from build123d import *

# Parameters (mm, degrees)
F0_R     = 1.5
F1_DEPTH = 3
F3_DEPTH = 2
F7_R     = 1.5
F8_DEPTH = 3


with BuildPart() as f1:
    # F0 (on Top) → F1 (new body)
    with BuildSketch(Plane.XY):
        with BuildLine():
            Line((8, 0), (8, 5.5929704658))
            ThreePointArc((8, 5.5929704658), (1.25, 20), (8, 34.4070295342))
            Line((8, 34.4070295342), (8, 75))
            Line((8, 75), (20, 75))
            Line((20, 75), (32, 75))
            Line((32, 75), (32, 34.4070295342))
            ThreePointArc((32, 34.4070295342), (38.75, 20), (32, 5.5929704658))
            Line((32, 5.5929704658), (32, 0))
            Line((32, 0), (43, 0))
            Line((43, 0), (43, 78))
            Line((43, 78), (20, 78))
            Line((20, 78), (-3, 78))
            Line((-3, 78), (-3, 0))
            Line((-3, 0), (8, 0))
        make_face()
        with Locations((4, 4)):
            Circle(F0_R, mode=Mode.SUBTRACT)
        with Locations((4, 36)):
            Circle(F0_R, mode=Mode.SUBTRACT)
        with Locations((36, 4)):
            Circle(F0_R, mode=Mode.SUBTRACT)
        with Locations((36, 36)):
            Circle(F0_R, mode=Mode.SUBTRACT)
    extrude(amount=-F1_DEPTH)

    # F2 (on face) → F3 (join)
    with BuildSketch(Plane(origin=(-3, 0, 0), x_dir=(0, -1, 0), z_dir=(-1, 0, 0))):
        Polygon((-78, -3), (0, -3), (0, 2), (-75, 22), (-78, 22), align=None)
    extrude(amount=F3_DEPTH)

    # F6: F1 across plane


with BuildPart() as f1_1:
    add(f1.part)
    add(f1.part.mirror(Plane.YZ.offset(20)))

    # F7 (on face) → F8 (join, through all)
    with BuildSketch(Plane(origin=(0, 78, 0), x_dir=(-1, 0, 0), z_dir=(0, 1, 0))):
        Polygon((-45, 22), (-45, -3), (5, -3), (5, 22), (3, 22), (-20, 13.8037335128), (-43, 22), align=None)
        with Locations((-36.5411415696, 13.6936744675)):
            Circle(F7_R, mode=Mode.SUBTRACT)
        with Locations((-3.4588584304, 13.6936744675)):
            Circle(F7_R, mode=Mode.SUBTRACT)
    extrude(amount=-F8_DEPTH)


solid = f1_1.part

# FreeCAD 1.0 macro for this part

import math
import FreeCAD as App
import Part
import Sketcher

V = App.Vector
Q = App.Units.Quantity


def add_polygon(sketch, points):
    """Adds a closed chain of lines whose ends are joined by coincident constraints."""
    first, n = sketch.GeometryCount, len(points)
    for a, b in zip(points, points[1:] + points[:1]):
        sketch.addGeometry(Part.LineSegment(App.Vector(*a, 0), App.Vector(*b, 0)), False)
    for i in range(n):
        sketch.addConstraint(Sketcher.Constraint("Coincident", first + i, 2, first + (i + 1) % n, 1))

doc = App.newDocument("Part")
body = doc.addObject("PartDesign::Body", "Body")

# Sketch on XY plane
sketch1 = doc.addObject("Sketcher::SketchObject", "Sketch")
body.addObject(sketch1)
sketch1.AttachmentSupport = (doc.XY_Plane, [""])
sketch1.MapMode = "FlatFace"
sketch1.addGeometry(Part.LineSegment(V(8, 0, 0), V(8, 5.59297, 0)), False)
sketch1.addGeometry(Part.ArcOfCircle(Part.Circle(V(20, 20, 0), V(0, 0, 1), 18.75), math.radians(129.791819), math.radians(230.208181)), False)
sketch1.addGeometry(Part.LineSegment(V(8, 34.40703, 0), V(8, 75, 0)), False)
sketch1.addGeometry(Part.LineSegment(V(8, 75, 0), V(32, 75, 0)), False)
sketch1.addGeometry(Part.LineSegment(V(32, 75, 0), V(32, 34.40703, 0)), False)
sketch1.addGeometry(Part.ArcOfCircle(Part.Circle(V(20, 20, 0), V(0, 0, 1), 18.75), math.radians(-50.208181), math.radians(50.208181)), False)
sketch1.addGeometry(Part.LineSegment(V(32, 5.59297, 0), V(32, 0, 0)), False)
sketch1.addGeometry(Part.LineSegment(V(32, 0, 0), V(43, 0, 0)), False)
sketch1.addGeometry(Part.LineSegment(V(43, 0, 0), V(43, 78, 0)), False)
sketch1.addGeometry(Part.LineSegment(V(43, 78, 0), V(-3, 78, 0)), False)
sketch1.addGeometry(Part.LineSegment(V(-3, 78, 0), V(-3, 0, 0)), False)
sketch1.addGeometry(Part.LineSegment(V(-3, 0, 0), V(8, 0, 0)), False)
sketch1.addGeometry(Part.Circle(V(4, 4, 0), V(0, 0, 1), 1.5), False)
sketch1.addGeometry(Part.Circle(V(36, 4, 0), V(0, 0, 1), 1.5), False)
sketch1.addGeometry(Part.Circle(V(4, 36, 0), V(0, 0, 1), 1.5), False)
sketch1.addGeometry(Part.Circle(V(36, 36, 0), V(0, 0, 1), 1.5), False)
sketch1.addConstraint(Sketcher.Constraint("Coincident", 0, 2, 1, 2))
sketch1.addConstraint(Sketcher.Constraint("Coincident", 1, 1, 2, 1))
sketch1.addConstraint(Sketcher.Constraint("Coincident", 2, 2, 3, 1))
sketch1.addConstraint(Sketcher.Constraint("Coincident", 3, 2, 4, 1))
sketch1.addConstraint(Sketcher.Constraint("Coincident", 4, 2, 5, 2))
sketch1.addConstraint(Sketcher.Constraint("Coincident", 5, 1, 6, 1))
sketch1.addConstraint(Sketcher.Constraint("Coincident", 6, 2, 7, 1))
sketch1.addConstraint(Sketcher.Constraint("Coincident", 7, 2, 8, 1))
sketch1.addConstraint(Sketcher.Constraint("Coincident", 8, 2, 9, 1))
sketch1.addConstraint(Sketcher.Constraint("Coincident", 9, 2, 10, 1))
sketch1.addConstraint(Sketcher.Constraint("Coincident", 10, 2, 11, 1))
sketch1.addConstraint(Sketcher.Constraint("Coincident", 11, 2, 0, 1))
sketch1.addConstraint(Sketcher.Constraint("Vertical", 0))
sketch1.addConstraint(Sketcher.Constraint("Vertical", 2))
sketch1.addConstraint(Sketcher.Constraint("Horizontal", 3))
sketch1.addConstraint(Sketcher.Constraint("Vertical", 4))
sketch1.addConstraint(Sketcher.Constraint("Vertical", 6))
sketch1.addConstraint(Sketcher.Constraint("Horizontal", 7))
sketch1.addConstraint(Sketcher.Constraint("Vertical", 8))
sketch1.addConstraint(Sketcher.Constraint("Horizontal", 9))
sketch1.addConstraint(Sketcher.Constraint("Vertical", 10))
sketch1.addConstraint(Sketcher.Constraint("Horizontal", 11))
sketch1.addConstraint(Sketcher.Constraint("Coincident", 5, 3, 1, 3))
sketch1.addConstraint(Sketcher.Constraint("Equal", 1, 5))
sketch1.addConstraint(Sketcher.Constraint("Equal", 12, 13))
sketch1.addConstraint(Sketcher.Constraint("Equal", 13, 14))
sketch1.addConstraint(Sketcher.Constraint("Equal", 14, 15))
sketch1.addConstraint(Sketcher.Constraint("PointOnObject", 6, 2, -1))
sketch1.addConstraint(Sketcher.Constraint("PointOnObject", 10, 2, -1))
sketch1.addConstraint(Sketcher.Constraint("Horizontal", 12, 3, 13, 3))
sketch1.addConstraint(Sketcher.Constraint("Horizontal", 14, 3, 15, 3))
sketch1.addConstraint(Sketcher.Constraint("Horizontal", 1, 1, 4, 2))
sketch1.addConstraint(Sketcher.Constraint("Horizontal", 0, 2, 5, 1))
sketch1.addConstraint(Sketcher.Constraint("Vertical", 12, 3, 14, 3))
sketch1.addConstraint(Sketcher.Constraint("Vertical", 13, 3, 15, 3))
sketch1.addConstraint(Sketcher.Constraint("Vertical", 0, 2, 1, 1))
sketch1.addConstraint(Sketcher.Constraint("Equal", 7, 11))
sketch1.addConstraint(Sketcher.Constraint("Diameter", 12, Q("3 mm")))
sketch1.addConstraint(Sketcher.Constraint("DistanceX", 3, 1, 3, 2, Q("24 mm")))
sketch1.addConstraint(Sketcher.Constraint("DistanceX", 7, 1, 7, 2, Q("11 mm")))
sketch1.addConstraint(Sketcher.Constraint("DistanceY", 8, 1, 8, 2, Q("78 mm")))
sketch1.addConstraint(Sketcher.Constraint("Radius", 1, Q("18.75 mm")))
sketch1.addConstraint(Sketcher.Constraint("DistanceX", -1, 1, 1, 3, Q("20 mm")))
sketch1.addConstraint(Sketcher.Constraint("DistanceY", -1, 1, 1, 3, Q("20 mm")))
sketch1.addConstraint(Sketcher.Constraint("DistanceX", -1, 1, 12, 3, Q("4 mm")))
sketch1.addConstraint(Sketcher.Constraint("DistanceY", -1, 1, 12, 3, Q("4 mm")))
sketch1.addConstraint(Sketcher.Constraint("DistanceX", -1, 1, 13, 3, Q("36 mm")))
sketch1.addConstraint(Sketcher.Constraint("DistanceY", -1, 1, 14, 3, Q("36 mm")))
sketch1.addConstraint(Sketcher.Constraint("DistanceY", -1, 1, 2, 2, Q("75 mm")))
pad1 = doc.addObject("PartDesign::Pad", "Pad")
body.addObject(pad1)
pad1.Profile = sketch1
pad1.Length = 3
pad1.Reversed = True

# Sketch on YZ plane
sketch2 = doc.addObject("Sketcher::SketchObject", "Sketch001")
body.addObject(sketch2)
sketch2.AttachmentSupport = (doc.YZ_Plane, [""])
sketch2.MapMode = "FlatFace"
sketch2.AttachmentOffset = App.Placement(V(0, 0, -3), App.Rotation())
add_polygon(sketch2, [(78, -3), (0, -3), (0, 2), (75, 22), (78, 22)])  # lines 0-4
sketch2.addConstraint(Sketcher.Constraint("Horizontal", 0))
sketch2.addConstraint(Sketcher.Constraint("Vertical", 1))
sketch2.addConstraint(Sketcher.Constraint("Horizontal", 3))
sketch2.addConstraint(Sketcher.Constraint("Vertical", 4))
sketch2.addConstraint(Sketcher.Constraint("PointOnObject", 0, 2, -2))
sketch2.addConstraint(Sketcher.Constraint("DistanceX", 0, 2, 0, 1, Q("78 mm")))
sketch2.addConstraint(Sketcher.Constraint("DistanceX", 3, 1, 3, 2, Q("3 mm")))
sketch2.addConstraint(Sketcher.Constraint("DistanceY", 1, 1, 1, 2, Q("5 mm")))
sketch2.addConstraint(Sketcher.Constraint("DistanceY", 4, 2, 4, 1, Q("25 mm")))
sketch2.addConstraint(Sketcher.Constraint("DistanceY", 0, 2, -1, 1, Q("3 mm")))
pad2 = doc.addObject("PartDesign::Pad", "Pad001")
body.addObject(pad2)
pad2.Profile = sketch2
pad2.Length = 2
pad2.Reversed = True
body2 = doc.addObject("PartDesign::Body", "Body001")
doc.recompute()

body2.BaseFeature = body
doc.recompute()

mirroring = doc.addObject("Part::Mirroring", "Mirroring")
mirroring.Source = body
mirroring.Base = V(20, 0, 0)
mirroring.Normal = V(1, 0, 0)
body3 = doc.addObject("PartDesign::Body", "Body002")
body3.BaseFeature = mirroring
boolean = doc.addObject("PartDesign::Boolean", "Boolean")
body2.addObject(boolean)
boolean.Type = "Fuse"
boolean.addObjects([body3])
doc.recompute()

# Sketch on XZ plane
sketch3 = doc.addObject("Sketcher::SketchObject", "Sketch002")
body2.addObject(sketch3)
sketch3.AttachmentSupport = (doc.getObject("XZ_Plane001"), [""])
sketch3.MapMode = "FlatFace"
sketch3.AttachmentOffset = App.Placement(V(0, 0, -78), App.Rotation())
add_polygon(sketch3, [(45, 22), (45, -3), (-5, -3), (-5, 22), (-3, 22), (20, 13.803734), (43, 22)])  # lines 0-6
sketch3.addGeometry(Part.Circle(V(36.541142, 13.693674, 0), V(0, 0, 1), 1.5), False)  # 7
sketch3.addGeometry(Part.Circle(V(3.458858, 13.693674, 0), V(0, 0, 1), 1.5), False)  # 8
sketch3.addConstraint(Sketcher.Constraint("Vertical", 0))
sketch3.addConstraint(Sketcher.Constraint("Horizontal", 1))
sketch3.addConstraint(Sketcher.Constraint("Vertical", 2))
sketch3.addConstraint(Sketcher.Constraint("Horizontal", 3))
sketch3.addConstraint(Sketcher.Constraint("Horizontal", 6))
sketch3.addConstraint(Sketcher.Constraint("Equal", 7, 8))
sketch3.addConstraint(Sketcher.Constraint("Horizontal", 7, 3, 8, 3))
sketch3.addConstraint(Sketcher.Constraint("Horizontal", 3, 2, 5, 2))
sketch3.addConstraint(Sketcher.Constraint("Equal", 3, 6))
sketch3.addConstraint(Sketcher.Constraint("Equal", 4, 5))
sketch3.addConstraint(Sketcher.Constraint("Diameter", 7, Q("3 mm")))
sketch3.addConstraint(Sketcher.Constraint("DistanceX", 1, 2, 1, 1, Q("50 mm")))
sketch3.addConstraint(Sketcher.Constraint("DistanceX", 3, 1, 3, 2, Q("2 mm")))
sketch3.addConstraint(Sketcher.Constraint("DistanceY", 0, 2, 0, 1, Q("25 mm")))
sketch3.addConstraint(Sketcher.Constraint("DistanceX", -1, 1, 0, 2, Q("45 mm")))
sketch3.addConstraint(Sketcher.Constraint("DistanceY", 0, 2, -1, 1, Q("3 mm")))
sketch3.addConstraint(Sketcher.Constraint("DistanceX", -1, 1, 7, 3, Q("36.541142 mm")))
sketch3.addConstraint(Sketcher.Constraint("DistanceX", -1, 1, 8, 3, Q("3.458858 mm")))
sketch3.addConstraint(Sketcher.Constraint("DistanceY", 7, 3, 4, 2, Q("0.110059 mm")))
sketch3.addConstraint(Sketcher.Constraint("Distance", 4, Q("24.416773 mm")))
pad3 = doc.addObject("PartDesign::Pad", "Pad002")
body2.addObject(pad3)
pad3.Profile = sketch3
pad3.Length = 3
mirroring.Visibility = False

doc.recompute()
